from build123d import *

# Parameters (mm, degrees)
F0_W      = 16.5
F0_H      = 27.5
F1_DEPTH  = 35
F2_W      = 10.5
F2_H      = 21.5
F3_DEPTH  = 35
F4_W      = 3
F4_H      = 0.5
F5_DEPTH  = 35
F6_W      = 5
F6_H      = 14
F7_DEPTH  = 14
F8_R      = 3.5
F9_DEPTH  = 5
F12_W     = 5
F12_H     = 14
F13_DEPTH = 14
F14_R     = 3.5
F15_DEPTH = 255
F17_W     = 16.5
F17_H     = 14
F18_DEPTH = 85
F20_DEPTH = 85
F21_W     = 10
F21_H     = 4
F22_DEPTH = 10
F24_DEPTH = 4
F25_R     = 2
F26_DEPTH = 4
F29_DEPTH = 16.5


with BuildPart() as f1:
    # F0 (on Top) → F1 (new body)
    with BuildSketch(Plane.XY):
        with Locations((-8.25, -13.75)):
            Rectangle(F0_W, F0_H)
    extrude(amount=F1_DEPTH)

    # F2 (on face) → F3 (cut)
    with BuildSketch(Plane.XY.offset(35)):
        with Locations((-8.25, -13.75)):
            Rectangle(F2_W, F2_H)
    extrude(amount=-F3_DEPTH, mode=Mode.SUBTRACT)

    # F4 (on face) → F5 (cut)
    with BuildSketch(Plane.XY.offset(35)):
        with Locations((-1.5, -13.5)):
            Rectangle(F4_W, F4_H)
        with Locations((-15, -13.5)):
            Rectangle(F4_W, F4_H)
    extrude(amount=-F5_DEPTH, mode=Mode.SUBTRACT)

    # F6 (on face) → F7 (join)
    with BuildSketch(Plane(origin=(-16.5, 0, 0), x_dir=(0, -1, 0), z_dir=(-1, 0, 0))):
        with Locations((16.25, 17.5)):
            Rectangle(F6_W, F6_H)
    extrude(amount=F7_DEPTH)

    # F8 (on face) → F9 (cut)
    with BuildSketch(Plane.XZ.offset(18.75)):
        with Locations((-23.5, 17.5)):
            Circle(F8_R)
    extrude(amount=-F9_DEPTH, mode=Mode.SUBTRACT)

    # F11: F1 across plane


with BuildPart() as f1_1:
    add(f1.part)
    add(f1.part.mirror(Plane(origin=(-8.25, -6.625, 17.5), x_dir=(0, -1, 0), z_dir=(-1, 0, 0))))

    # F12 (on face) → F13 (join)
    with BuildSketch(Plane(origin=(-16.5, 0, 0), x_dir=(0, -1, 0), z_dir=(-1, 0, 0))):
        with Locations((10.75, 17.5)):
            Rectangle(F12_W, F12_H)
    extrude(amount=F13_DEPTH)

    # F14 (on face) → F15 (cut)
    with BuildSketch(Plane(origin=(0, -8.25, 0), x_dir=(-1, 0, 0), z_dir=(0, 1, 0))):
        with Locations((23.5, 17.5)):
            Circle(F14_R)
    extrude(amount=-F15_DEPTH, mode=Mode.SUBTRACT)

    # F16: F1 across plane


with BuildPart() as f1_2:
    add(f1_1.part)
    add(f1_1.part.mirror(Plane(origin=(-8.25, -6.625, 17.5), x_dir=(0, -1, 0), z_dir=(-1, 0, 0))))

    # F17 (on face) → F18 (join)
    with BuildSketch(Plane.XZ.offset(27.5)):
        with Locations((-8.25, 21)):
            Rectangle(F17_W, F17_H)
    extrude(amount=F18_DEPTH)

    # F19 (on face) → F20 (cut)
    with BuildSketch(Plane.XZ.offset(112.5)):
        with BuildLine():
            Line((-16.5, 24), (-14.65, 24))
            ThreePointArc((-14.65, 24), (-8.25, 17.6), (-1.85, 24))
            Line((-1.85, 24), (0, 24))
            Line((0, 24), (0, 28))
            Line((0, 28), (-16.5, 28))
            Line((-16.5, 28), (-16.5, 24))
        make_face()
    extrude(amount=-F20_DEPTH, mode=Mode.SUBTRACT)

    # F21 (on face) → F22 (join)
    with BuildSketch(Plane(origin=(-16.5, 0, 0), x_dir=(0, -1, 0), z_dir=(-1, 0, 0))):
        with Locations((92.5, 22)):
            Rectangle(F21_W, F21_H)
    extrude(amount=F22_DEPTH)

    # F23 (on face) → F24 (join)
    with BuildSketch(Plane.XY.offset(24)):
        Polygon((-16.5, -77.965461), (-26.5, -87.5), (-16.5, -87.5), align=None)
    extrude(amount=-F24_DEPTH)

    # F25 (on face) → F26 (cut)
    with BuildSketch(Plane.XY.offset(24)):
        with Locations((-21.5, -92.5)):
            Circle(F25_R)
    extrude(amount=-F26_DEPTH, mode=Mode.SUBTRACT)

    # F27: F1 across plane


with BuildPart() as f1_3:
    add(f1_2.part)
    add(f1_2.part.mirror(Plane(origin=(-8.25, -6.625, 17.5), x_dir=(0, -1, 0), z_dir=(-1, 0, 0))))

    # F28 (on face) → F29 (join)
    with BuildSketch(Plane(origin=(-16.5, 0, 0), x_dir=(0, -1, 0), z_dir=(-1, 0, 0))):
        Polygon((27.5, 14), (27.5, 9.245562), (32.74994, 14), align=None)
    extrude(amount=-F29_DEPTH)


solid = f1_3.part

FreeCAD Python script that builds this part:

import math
import FreeCAD as App
import Part
import Sketcher

V = App.Vector
Q = App.Units.Quantity


def add_polygon(sketch, points):
    """Adds a closed chain of lines whose ends are joined by coincident constraints."""
    first, n = sketch.GeometryCount, len(points)
    for a, b in zip(points, points[1:] + points[:1]):
        sketch.addGeometry(Part.LineSegment(App.Vector(*a, 0), App.Vector(*b, 0)), False)
    for i in range(n):
        sketch.addConstraint(Sketcher.Constraint("Coincident", first + i, 2, first + (i + 1) % n, 1))

doc = App.newDocument("Part")
body = doc.addObject("PartDesign::Body", "Body")
body.AllowCompound = True

# Sketch on XY plane
sketch1 = body.newObject("Sketcher::SketchObject", "Sketch")
sketch1.AttachmentSupport = (doc.getObject("XY_Plane"), [""])
sketch1.MapMode = "FlatFace"
add_polygon(sketch1, [(-16, 0), (-16, -28), (0, -28), (0, 0)])  # lines 0-3
sketch1.addConstraint(Sketcher.Constraint("Vertical", 0))
sketch1.addConstraint(Sketcher.Constraint("Horizontal", 1))
sketch1.addConstraint(Sketcher.Constraint("Vertical", 2))
sketch1.addConstraint(Sketcher.Constraint("Horizontal", 3))
sketch1.addConstraint(Sketcher.Constraint("Coincident", 2, 2, -1, 1))
sketch1.addConstraint(Sketcher.Constraint("DistanceX", 1, 1, 1, 2, Q("16.5 mm")))
sketch1.addConstraint(Sketcher.Constraint("DistanceY", 0, 2, 0, 1, Q("27.5 mm")))
pad1 = body.newObject("PartDesign::Pad", "Pad")
pad1.Profile = sketch1
pad1.Length = 35

# Sketch on XY plane
sketch2 = body.newObject("Sketcher::SketchObject", "Sketch001")
sketch2.AttachmentSupport = (doc.getObject("XY_Plane"), [""])
sketch2.MapMode = "FlatFace"
sketch2.AttachmentOffset = App.Placement(V(0, 0, 35), App.Rotation())
add_polygon(sketch2, [(-14, -3), (-14, -24), (-3, -24), (-3, -3)])  # lines 0-3
sketch2.addConstraint(Sketcher.Constraint("Vertical", 0))
sketch2.addConstraint(Sketcher.Constraint("Horizontal", 1))
sketch2.addConstraint(Sketcher.Constraint("Vertical", 2))
sketch2.addConstraint(Sketcher.Constraint("Horizontal", 3))
sketch2.addConstraint(Sketcher.Constraint("DistanceX", 1, 1, 1, 2, Q("10.5 mm")))
sketch2.addConstraint(Sketcher.Constraint("DistanceY", 0, 2, 0, 1, Q("21.5 mm")))
sketch2.addConstraint(Sketcher.Constraint("DistanceX", 1, 2, -1, 1, Q("3 mm")))
sketch2.addConstraint(Sketcher.Constraint("DistanceY", 2, 2, -1, 1, Q("3 mm")))
pocket1 = body.newObject("PartDesign::Pocket", "Pocket")
pocket1.Profile = sketch2
pocket1.Length = 35

# Sketch on XY plane
sketch3 = body.newObject("Sketcher::SketchObject", "Sketch002")
sketch3.AttachmentSupport = (doc.getObject("XY_Plane"), [""])
sketch3.MapMode = "FlatFace"
sketch3.AttachmentOffset = App.Placement(V(0, 0, 35), App.Rotation())
add_polygon(sketch3, [(-3, -13.2), (-3, -13.8), (0, -13.8), (0, -13.2)])  # lines 0-3
add_polygon(sketch3, [(-16.5, -13.2), (-16.5, -13.8), (-13.5, -13.8), (-13.5, -13.2)])  # lines 4-7
sketch3.addConstraint(Sketcher.Constraint("Vertical", 0))
sketch3.addConstraint(Sketcher.Constraint("Horizontal", 1))
sketch3.addConstraint(Sketcher.Constraint("Vertical", 2))
sketch3.addConstraint(Sketcher.Constraint("Horizontal", 3))
sketch3.addConstraint(Sketcher.Constraint("Vertical", 4))
sketch3.addConstraint(Sketcher.Constraint("Horizontal", 5))
sketch3.addConstraint(Sketcher.Constraint("Vertical", 6))
sketch3.addConstraint(Sketcher.Constraint("Horizontal", 7))
sketch3.addConstraint(Sketcher.Constraint("PointOnObject", 1, 2, -2))
sketch3.addConstraint(Sketcher.Constraint("Horizontal", 1, 2, 4, 2))
sketch3.addConstraint(Sketcher.Constraint("Horizontal", 3, 2, 6, 2))
sketch3.addConstraint(Sketcher.Constraint("Equal", 3, 5))
sketch3.addConstraint(Sketcher.Constraint("DistanceX", 1, 1, 1, 2, Q("3 mm")))
sketch3.addConstraint(Sketcher.Constraint("DistanceY", 0, 2, 0, 1, Q("0.5 mm")))
sketch3.addConstraint(Sketcher.Constraint("DistanceX", 4, 2, -1, 1, Q("16.5 mm")))
sketch3.addConstraint(Sketcher.Constraint("DistanceY", 0, 2, -1, 1, Q("13.75 mm")))
pocket2 = body.newObject("PartDesign::Pocket", "Pocket001")
pocket2.Profile = sketch3
pocket2.Length = 35

# Sketch on YZ plane
sketch4 = body.newObject("Sketcher::SketchObject", "Sketch003")
sketch4.AttachmentSupport = (doc.getObject("YZ_Plane"), [""])
sketch4.MapMode = "FlatFace"
sketch4.AttachmentOffset = App.Placement(V(0, 0, -16.5), App.Rotation())
add_polygon(sketch4, [(-14, 24), (-14, 10), (-19, 10), (-19, 24)])  # lines 0-3
sketch4.addConstraint(Sketcher.Constraint("Vertical", 0))
sketch4.addConstraint(Sketcher.Constraint("Horizontal", 1))
sketch4.addConstraint(Sketcher.Constraint("Vertical", 2))
sketch4.addConstraint(Sketcher.Constraint("Horizontal", 3))
sketch4.addConstraint(Sketcher.Constraint("DistanceX", 1, 2, 1, 1, Q("5 mm")))
sketch4.addConstraint(Sketcher.Constraint("DistanceY", 0, 2, 0, 1, Q("14 mm")))
sketch4.addConstraint(Sketcher.Constraint("DistanceY", -1, 1, 0, 2, Q("10.5 mm")))
sketch4.addConstraint(Sketcher.Constraint("DistanceX", 0, 2, -1, 1, Q("13.75 mm")))
pad2 = body.newObject("PartDesign::Pad", "Pad001")
pad2.Profile = sketch4
pad2.Length = 14
pad2.Reversed = True

# Sketch on XZ plane
sketch5 = body.newObject("Sketcher::SketchObject", "Sketch004")
sketch5.AttachmentSupport = (doc.getObject("XZ_Plane"), [""])
sketch5.MapMode = "FlatFace"
sketch5.AttachmentOffset = App.Placement(V(0, 0, 18.75), App.Rotation())
sketch5.addGeometry(Part.Circle(V(-23.5, 17.5, 0), V(0, 0, 1), 3.5), False)
sketch5.addConstraint(Sketcher.Constraint("Diameter", 0, Q("7 mm")))
sketch5.addConstraint(Sketcher.Constraint("DistanceX", 0, 3, -1, 1, Q("23.5 mm")))
sketch5.addConstraint(Sketcher.Constraint("DistanceY", -1, 1, 0, 3, Q("17.5 mm")))
pocket3 = body.newObject("PartDesign::Pocket", "Pocket002")
pocket3.Profile = sketch5
pocket3.Length = 5
body2 = doc.addObject("PartDesign::Body", "Body001")
body2.AllowCompound = True
doc.recompute()

body2.BaseFeature = body
doc.recompute()

mirroring = doc.addObject("Part::Mirroring", "Mirroring")
mirroring.Source = body
mirroring.Base = V(-8.25, -6.625, 17.5)
mirroring.Normal = V(-1, 0, 0)
body3 = doc.addObject("PartDesign::Body", "Body002")
body3.BaseFeature = mirroring
boolean = body2.newObject("PartDesign::Boolean", "Boolean")
boolean.Type = "Fuse"
boolean.addObjects([body3])
doc.recompute()

# Sketch on YZ plane
sketch6 = body2.newObject("Sketcher::SketchObject", "Sketch005")
sketch6.AttachmentSupport = (doc.getObject("YZ_Plane001"), [""])
sketch6.MapMode = "FlatFace"
sketch6.AttachmentOffset = App.Placement(V(0, 0, -16.5), App.Rotation())
add_polygon(sketch6, [(-8, 24), (-8, 10), (-13, 10), (-13, 24)])  # lines 0-3
sketch6.addConstraint(Sketcher.Constraint("Vertical", 0))
sketch6.addConstraint(Sketcher.Constraint("Horizontal", 1))
sketch6.addConstraint(Sketcher.Constraint("Vertical", 2))
sketch6.addConstraint(Sketcher.Constraint("Horizontal", 3))
sketch6.addConstraint(Sketcher.Constraint("DistanceX", 1, 2, 1, 1, Q("5 mm")))
sketch6.addConstraint(Sketcher.Constraint("DistanceY", 0, 2, 0, 1, Q("14 mm")))
sketch6.addConstraint(Sketcher.Constraint("DistanceY", -1, 1, 0, 2, Q("10.5 mm")))
sketch6.addConstraint(Sketcher.Constraint("DistanceX", 0, 2, -1, 1, Q("8.25 mm")))
pad3 = body2.newObject("PartDesign::Pad", "Pad002")
pad3.Profile = sketch6
pad3.Length = 14
pad3.Reversed = True

# Sketch on XZ plane
sketch7 = body2.newObject("Sketcher::SketchObject", "Sketch006")
sketch7.AttachmentSupport = (doc.getObject("XZ_Plane001"), [""])
sketch7.MapMode = "FlatFace"
sketch7.AttachmentOffset = App.Placement(V(0, 0, 8.25), App.Rotation())
sketch7.addGeometry(Part.Circle(V(-23.5, 17.5, 0), V(0, 0, 1), 3.5), False)
sketch7.addConstraint(Sketcher.Constraint("Diameter", 0, Q("7 mm")))
sketch7.addConstraint(Sketcher.Constraint("DistanceX", 0, 3, -1, 1, Q("23.5 mm")))
sketch7.addConstraint(Sketcher.Constraint("DistanceY", -1, 1, 0, 3, Q("17.5 mm")))
pocket4 = body2.newObject("PartDesign::Pocket", "Pocket003")
pocket4.Profile = sketch7
pocket4.Length = 255
pocket4.Reversed = True
body4 = doc.addObject("PartDesign::Body", "Body003")
body4.AllowCompound = True
doc.recompute()

body4.BaseFeature = body2
doc.recompute()

mirroring2 = doc.addObject("Part::Mirroring", "Mirroring001")
mirroring2.Source = body2
mirroring2.Base = V(-8.25, -6.625, 17.5)
mirroring2.Normal = V(-1, 0, 0)
body5 = doc.addObject("PartDesign::Body", "Body004")
body5.BaseFeature = mirroring2
boolean2 = body4.newObject("PartDesign::Boolean", "Boolean001")
boolean2.Type = "Fuse"
boolean2.addObjects([body5])
doc.recompute()

# Sketch on XZ plane
sketch8 = body4.newObject("Sketcher::SketchObject", "Sketch007")
sketch8.AttachmentSupport = (doc.getObject("XZ_Plane003"), [""])
sketch8.MapMode = "FlatFace"
sketch8.AttachmentOffset = App.Placement(V(0, 0, 27.5), App.Rotation())
add_polygon(sketch8, [(-16, 28), (-16, 14), (0, 14), (0, 28)])  # lines 0-3
sketch8.addConstraint(Sketcher.Constraint("Vertical", 0))
sketch8.addConstraint(Sketcher.Constraint("Horizontal", 1))
sketch8.addConstraint(Sketcher.Constraint("Vertical", 2))
sketch8.addConstraint(Sketcher.Constraint("Horizontal", 3))
sketch8.addConstraint(Sketcher.Constraint("PointOnObject", 1, 2, -2))
sketch8.addConstraint(Sketcher.Constraint("DistanceY", 0, 2, 0, 1, Q("14 mm")))
sketch8.addConstraint(Sketcher.Constraint("DistanceX", 1, 1, 1, 2, Q("16.5 mm")))
sketch8.addConstraint(Sketcher.Constraint("DistanceY", -1, 1, 0, 2, Q("14 mm")))
pad4 = body4.newObject("PartDesign::Pad", "Pad003")
pad4.Profile = sketch8
pad4.Length = 85

# Sketch on XZ plane
sketch9 = body4.newObject("Sketcher::SketchObject", "Sketch008")
sketch9.AttachmentSupport = (doc.getObject("XZ_Plane003"), [""])
sketch9.MapMode = "FlatFace"
sketch9.AttachmentOffset = App.Placement(V(0, 0, 112.5), App.Rotation())
sketch9.addGeometry(Part.LineSegment(V(-16.5, 24, 0), V(-14.7, 24, 0)), False)
sketch9.addGeometry(Part.ArcOfCircle(Part.Circle(V(-8.2, 24, 0), V(0, 0, 1), 6.4), math.radians(180), math.radians(360)), False)
sketch9.addGeometry(Part.LineSegment(V(-1.9, 24, 0), V(0, 24, 0)), False)
sketch9.addGeometry(Part.LineSegment(V(0, 24, 0), V(0, 28, 0)), False)
sketch9.addGeometry(Part.LineSegment(V(0, 28, 0), V(-16.5, 28, 0)), False)
sketch9.addGeometry(Part.LineSegment(V(-16.5, 28, 0), V(-16.5, 24, 0)), False)
sketch9.addConstraint(Sketcher.Constraint("Coincident", 0, 2, 1, 1))
sketch9.addConstraint(Sketcher.Constraint("Coincident", 1, 2, 2, 1))
sketch9.addConstraint(Sketcher.Constraint("Coincident", 2, 2, 3, 1))
sketch9.addConstraint(Sketcher.Constraint("Coincident", 3, 2, 4, 1))
sketch9.addConstraint(Sketcher.Constraint("Coincident", 4, 2, 5, 1))
sketch9.addConstraint(Sketcher.Constraint("Coincident", 5, 2, 0, 1))
sketch9.addConstraint(Sketcher.Constraint("Horizontal", 0))
sketch9.addConstraint(Sketcher.Constraint("Horizontal", 2))
sketch9.addConstraint(Sketcher.Constraint("Vertical", 3))
sketch9.addConstraint(Sketcher.Constraint("Horizontal", 4))
sketch9.addConstraint(Sketcher.Constraint("Vertical", 5))
sketch9.addConstraint(Sketcher.Constraint("PointOnObject", 2, 2, -2))
sketch9.addConstraint(Sketcher.Constraint("Horizontal", 1, 3, 0, 2))
sketch9.addConstraint(Sketcher.Constraint("Horizontal", 0, 2, 1, 2))
sketch9.addConstraint(Sketcher.Constraint("Equal", 0, 2))
sketch9.addConstraint(Sketcher.Constraint("Radius", 1, Q("6.4 mm")))
sketch9.addConstraint(Sketcher.Constraint("DistanceY", 3, 1, 3, 2, Q("4 mm")))
sketch9.addConstraint(Sketcher.Constraint("DistanceX", 4, 2, 4, 1, Q("16.5 mm")))
sketch9.addConstraint(Sketcher.Constraint("DistanceY", -1, 1, 1, 3, Q("24 mm")))
pocket5 = body4.newObject("PartDesign::Pocket", "Pocket004")
pocket5.Profile = sketch9
pocket5.Length = 85

# Sketch on YZ plane
sketch10 = body4.newObject("Sketcher::SketchObject", "Sketch009")
sketch10.AttachmentSupport = (doc.getObject("YZ_Plane003"), [""])
sketch10.MapMode = "FlatFace"
sketch10.AttachmentOffset = App.Placement(V(0, 0, -16.5), App.Rotation())
add_polygon(sketch10, [(-87.5, 24), (-87.5, 20), (-97.5, 20), (-97.5, 24)])  # lines 0-3
sketch10.addConstraint(Sketcher.Constraint("Vertical", 0))
sketch10.addConstraint(Sketcher.Constraint("Horizontal", 1))
sketch10.addConstraint(Sketcher.Constraint("Vertical", 2))
sketch10.addConstraint(Sketcher.Constraint("Horizontal", 3))
sketch10.addConstraint(Sketcher.Constraint("DistanceX", 1, 2, 1, 1, Q("10 mm")))
sketch10.addConstraint(Sketcher.Constraint("DistanceY", 0, 2, 0, 1, Q("4 mm")))
sketch10.addConstraint(Sketcher.Constraint("DistanceY", -1, 1, 0, 2, Q("20 mm")))
sketch10.addConstraint(Sketcher.Constraint("DistanceX", 0, 2, -1, 1, Q("87.5 mm")))
pad5 = body4.newObject("PartDesign::Pad", "Pad004")
pad5.Profile = sketch10
pad5.Length = 10
pad5.Reversed = True

# Sketch on XY plane
sketch11 = body4.newObject("Sketcher::SketchObject", "Sketch010")
sketch11.AttachmentSupport = (doc.getObject("XY_Plane003"), [""])
sketch11.MapMode = "FlatFace"
sketch11.AttachmentOffset = App.Placement(V(0, 0, 24), App.Rotation())
add_polygon(sketch11, [(-16, -78), (-26, -88), (-16, -88)])  # lines 0-2
sketch11.addConstraint(Sketcher.Constraint("Horizontal", 1))
sketch11.addConstraint(Sketcher.Constraint("Vertical", 2))
sketch11.addConstraint(Sketcher.Constraint("DistanceX", 1, 1, 1, 2, Q("10 mm")))
sketch11.addConstraint(Sketcher.Constraint("DistanceX", 0, 2, -1, 1, Q("26.5 mm")))
sketch11.addConstraint(Sketcher.Constraint("DistanceY", 0, 2, -1, 1, Q("87.5 mm")))
sketch11.addConstraint(Sketcher.Constraint("DistanceY", 2, 1, 2, 2, Q("9.534539 mm")))
pad6 = body4.newObject("PartDesign::Pad", "Pad005")
pad6.Profile = sketch11
pad6.Length = 4
pad6.Reversed = True

# Sketch on XY plane
sketch12 = body4.newObject("Sketcher::SketchObject", "Sketch011")
sketch12.AttachmentSupport = (doc.getObject("XY_Plane003"), [""])
sketch12.MapMode = "FlatFace"
sketch12.AttachmentOffset = App.Placement(V(0, 0, 24), App.Rotation())
sketch12.addGeometry(Part.Circle(V(-21.5, -92.5, 0), V(0, 0, 1), 2), False)
sketch12.addConstraint(Sketcher.Constraint("Diameter", 0, Q("4 mm")))
sketch12.addConstraint(Sketcher.Constraint("DistanceX", 0, 3, -1, 1, Q("21.5 mm")))
sketch12.addConstraint(Sketcher.Constraint("DistanceY", 0, 3, -1, 1, Q("92.5 mm")))
pocket6 = body4.newObject("PartDesign::Pocket", "Pocket005")
pocket6.Profile = sketch12
pocket6.Length = 4
body6 = doc.addObject("PartDesign::Body", "Body005")
body6.AllowCompound = True
doc.recompute()

body6.BaseFeature = body4
doc.recompute()

mirroring3 = doc.addObject("Part::Mirroring", "Mirroring002")
mirroring3.Source = body4
mirroring3.Base = V(-8.25, -6.625, 17.5)
mirroring3.Normal = V(-1, 0, 0)
body7 = doc.addObject("PartDesign::Body", "Body006")
body7.BaseFeature = mirroring3
boolean3 = body6.newObject("PartDesign::Boolean", "Boolean002")
boolean3.Type = "Fuse"
boolean3.addObjects([body7])
doc.recompute()

# Sketch on YZ plane
sketch13 = body6.newObject("Sketcher::SketchObject", "Sketch012")
sketch13.AttachmentSupport = (doc.getObject("YZ_Plane005"), [""])
sketch13.MapMode = "FlatFace"
sketch13.AttachmentOffset = App.Placement(V(0, 0, -16.5), App.Rotation())
add_polygon(sketch13, [(-27.5, 14), (-27.5, 9.2), (-32.7, 14)])  # lines 0-2
sketch13.addConstraint(Sketcher.Constraint("Vertical", 0))
sketch13.addConstraint(Sketcher.Constraint("Horizontal", 2))
sketch13.addConstraint(Sketcher.Constraint("DistanceY", -1, 1, 1, 2, Q("14 mm")))
sketch13.addConstraint(Sketcher.Constraint("DistanceX", 0, 2, -1, 1, Q("27.5 mm")))
sketch13.addConstraint(Sketcher.Constraint("DistanceX", 2, 1, 2, 2, Q("5.24994 mm")))
sketch13.addConstraint(Sketcher.Constraint("DistanceY", 0, 2, 0, 1, Q("4.754438 mm")))
pad7 = body6.newObject("PartDesign::Pad", "Pad006")
pad7.Profile = sketch13
pad7.Length = 16.5
mirroring.Visibility = False
mirroring2.Visibility = False
mirroring3.Visibility = False

doc.recompute()
